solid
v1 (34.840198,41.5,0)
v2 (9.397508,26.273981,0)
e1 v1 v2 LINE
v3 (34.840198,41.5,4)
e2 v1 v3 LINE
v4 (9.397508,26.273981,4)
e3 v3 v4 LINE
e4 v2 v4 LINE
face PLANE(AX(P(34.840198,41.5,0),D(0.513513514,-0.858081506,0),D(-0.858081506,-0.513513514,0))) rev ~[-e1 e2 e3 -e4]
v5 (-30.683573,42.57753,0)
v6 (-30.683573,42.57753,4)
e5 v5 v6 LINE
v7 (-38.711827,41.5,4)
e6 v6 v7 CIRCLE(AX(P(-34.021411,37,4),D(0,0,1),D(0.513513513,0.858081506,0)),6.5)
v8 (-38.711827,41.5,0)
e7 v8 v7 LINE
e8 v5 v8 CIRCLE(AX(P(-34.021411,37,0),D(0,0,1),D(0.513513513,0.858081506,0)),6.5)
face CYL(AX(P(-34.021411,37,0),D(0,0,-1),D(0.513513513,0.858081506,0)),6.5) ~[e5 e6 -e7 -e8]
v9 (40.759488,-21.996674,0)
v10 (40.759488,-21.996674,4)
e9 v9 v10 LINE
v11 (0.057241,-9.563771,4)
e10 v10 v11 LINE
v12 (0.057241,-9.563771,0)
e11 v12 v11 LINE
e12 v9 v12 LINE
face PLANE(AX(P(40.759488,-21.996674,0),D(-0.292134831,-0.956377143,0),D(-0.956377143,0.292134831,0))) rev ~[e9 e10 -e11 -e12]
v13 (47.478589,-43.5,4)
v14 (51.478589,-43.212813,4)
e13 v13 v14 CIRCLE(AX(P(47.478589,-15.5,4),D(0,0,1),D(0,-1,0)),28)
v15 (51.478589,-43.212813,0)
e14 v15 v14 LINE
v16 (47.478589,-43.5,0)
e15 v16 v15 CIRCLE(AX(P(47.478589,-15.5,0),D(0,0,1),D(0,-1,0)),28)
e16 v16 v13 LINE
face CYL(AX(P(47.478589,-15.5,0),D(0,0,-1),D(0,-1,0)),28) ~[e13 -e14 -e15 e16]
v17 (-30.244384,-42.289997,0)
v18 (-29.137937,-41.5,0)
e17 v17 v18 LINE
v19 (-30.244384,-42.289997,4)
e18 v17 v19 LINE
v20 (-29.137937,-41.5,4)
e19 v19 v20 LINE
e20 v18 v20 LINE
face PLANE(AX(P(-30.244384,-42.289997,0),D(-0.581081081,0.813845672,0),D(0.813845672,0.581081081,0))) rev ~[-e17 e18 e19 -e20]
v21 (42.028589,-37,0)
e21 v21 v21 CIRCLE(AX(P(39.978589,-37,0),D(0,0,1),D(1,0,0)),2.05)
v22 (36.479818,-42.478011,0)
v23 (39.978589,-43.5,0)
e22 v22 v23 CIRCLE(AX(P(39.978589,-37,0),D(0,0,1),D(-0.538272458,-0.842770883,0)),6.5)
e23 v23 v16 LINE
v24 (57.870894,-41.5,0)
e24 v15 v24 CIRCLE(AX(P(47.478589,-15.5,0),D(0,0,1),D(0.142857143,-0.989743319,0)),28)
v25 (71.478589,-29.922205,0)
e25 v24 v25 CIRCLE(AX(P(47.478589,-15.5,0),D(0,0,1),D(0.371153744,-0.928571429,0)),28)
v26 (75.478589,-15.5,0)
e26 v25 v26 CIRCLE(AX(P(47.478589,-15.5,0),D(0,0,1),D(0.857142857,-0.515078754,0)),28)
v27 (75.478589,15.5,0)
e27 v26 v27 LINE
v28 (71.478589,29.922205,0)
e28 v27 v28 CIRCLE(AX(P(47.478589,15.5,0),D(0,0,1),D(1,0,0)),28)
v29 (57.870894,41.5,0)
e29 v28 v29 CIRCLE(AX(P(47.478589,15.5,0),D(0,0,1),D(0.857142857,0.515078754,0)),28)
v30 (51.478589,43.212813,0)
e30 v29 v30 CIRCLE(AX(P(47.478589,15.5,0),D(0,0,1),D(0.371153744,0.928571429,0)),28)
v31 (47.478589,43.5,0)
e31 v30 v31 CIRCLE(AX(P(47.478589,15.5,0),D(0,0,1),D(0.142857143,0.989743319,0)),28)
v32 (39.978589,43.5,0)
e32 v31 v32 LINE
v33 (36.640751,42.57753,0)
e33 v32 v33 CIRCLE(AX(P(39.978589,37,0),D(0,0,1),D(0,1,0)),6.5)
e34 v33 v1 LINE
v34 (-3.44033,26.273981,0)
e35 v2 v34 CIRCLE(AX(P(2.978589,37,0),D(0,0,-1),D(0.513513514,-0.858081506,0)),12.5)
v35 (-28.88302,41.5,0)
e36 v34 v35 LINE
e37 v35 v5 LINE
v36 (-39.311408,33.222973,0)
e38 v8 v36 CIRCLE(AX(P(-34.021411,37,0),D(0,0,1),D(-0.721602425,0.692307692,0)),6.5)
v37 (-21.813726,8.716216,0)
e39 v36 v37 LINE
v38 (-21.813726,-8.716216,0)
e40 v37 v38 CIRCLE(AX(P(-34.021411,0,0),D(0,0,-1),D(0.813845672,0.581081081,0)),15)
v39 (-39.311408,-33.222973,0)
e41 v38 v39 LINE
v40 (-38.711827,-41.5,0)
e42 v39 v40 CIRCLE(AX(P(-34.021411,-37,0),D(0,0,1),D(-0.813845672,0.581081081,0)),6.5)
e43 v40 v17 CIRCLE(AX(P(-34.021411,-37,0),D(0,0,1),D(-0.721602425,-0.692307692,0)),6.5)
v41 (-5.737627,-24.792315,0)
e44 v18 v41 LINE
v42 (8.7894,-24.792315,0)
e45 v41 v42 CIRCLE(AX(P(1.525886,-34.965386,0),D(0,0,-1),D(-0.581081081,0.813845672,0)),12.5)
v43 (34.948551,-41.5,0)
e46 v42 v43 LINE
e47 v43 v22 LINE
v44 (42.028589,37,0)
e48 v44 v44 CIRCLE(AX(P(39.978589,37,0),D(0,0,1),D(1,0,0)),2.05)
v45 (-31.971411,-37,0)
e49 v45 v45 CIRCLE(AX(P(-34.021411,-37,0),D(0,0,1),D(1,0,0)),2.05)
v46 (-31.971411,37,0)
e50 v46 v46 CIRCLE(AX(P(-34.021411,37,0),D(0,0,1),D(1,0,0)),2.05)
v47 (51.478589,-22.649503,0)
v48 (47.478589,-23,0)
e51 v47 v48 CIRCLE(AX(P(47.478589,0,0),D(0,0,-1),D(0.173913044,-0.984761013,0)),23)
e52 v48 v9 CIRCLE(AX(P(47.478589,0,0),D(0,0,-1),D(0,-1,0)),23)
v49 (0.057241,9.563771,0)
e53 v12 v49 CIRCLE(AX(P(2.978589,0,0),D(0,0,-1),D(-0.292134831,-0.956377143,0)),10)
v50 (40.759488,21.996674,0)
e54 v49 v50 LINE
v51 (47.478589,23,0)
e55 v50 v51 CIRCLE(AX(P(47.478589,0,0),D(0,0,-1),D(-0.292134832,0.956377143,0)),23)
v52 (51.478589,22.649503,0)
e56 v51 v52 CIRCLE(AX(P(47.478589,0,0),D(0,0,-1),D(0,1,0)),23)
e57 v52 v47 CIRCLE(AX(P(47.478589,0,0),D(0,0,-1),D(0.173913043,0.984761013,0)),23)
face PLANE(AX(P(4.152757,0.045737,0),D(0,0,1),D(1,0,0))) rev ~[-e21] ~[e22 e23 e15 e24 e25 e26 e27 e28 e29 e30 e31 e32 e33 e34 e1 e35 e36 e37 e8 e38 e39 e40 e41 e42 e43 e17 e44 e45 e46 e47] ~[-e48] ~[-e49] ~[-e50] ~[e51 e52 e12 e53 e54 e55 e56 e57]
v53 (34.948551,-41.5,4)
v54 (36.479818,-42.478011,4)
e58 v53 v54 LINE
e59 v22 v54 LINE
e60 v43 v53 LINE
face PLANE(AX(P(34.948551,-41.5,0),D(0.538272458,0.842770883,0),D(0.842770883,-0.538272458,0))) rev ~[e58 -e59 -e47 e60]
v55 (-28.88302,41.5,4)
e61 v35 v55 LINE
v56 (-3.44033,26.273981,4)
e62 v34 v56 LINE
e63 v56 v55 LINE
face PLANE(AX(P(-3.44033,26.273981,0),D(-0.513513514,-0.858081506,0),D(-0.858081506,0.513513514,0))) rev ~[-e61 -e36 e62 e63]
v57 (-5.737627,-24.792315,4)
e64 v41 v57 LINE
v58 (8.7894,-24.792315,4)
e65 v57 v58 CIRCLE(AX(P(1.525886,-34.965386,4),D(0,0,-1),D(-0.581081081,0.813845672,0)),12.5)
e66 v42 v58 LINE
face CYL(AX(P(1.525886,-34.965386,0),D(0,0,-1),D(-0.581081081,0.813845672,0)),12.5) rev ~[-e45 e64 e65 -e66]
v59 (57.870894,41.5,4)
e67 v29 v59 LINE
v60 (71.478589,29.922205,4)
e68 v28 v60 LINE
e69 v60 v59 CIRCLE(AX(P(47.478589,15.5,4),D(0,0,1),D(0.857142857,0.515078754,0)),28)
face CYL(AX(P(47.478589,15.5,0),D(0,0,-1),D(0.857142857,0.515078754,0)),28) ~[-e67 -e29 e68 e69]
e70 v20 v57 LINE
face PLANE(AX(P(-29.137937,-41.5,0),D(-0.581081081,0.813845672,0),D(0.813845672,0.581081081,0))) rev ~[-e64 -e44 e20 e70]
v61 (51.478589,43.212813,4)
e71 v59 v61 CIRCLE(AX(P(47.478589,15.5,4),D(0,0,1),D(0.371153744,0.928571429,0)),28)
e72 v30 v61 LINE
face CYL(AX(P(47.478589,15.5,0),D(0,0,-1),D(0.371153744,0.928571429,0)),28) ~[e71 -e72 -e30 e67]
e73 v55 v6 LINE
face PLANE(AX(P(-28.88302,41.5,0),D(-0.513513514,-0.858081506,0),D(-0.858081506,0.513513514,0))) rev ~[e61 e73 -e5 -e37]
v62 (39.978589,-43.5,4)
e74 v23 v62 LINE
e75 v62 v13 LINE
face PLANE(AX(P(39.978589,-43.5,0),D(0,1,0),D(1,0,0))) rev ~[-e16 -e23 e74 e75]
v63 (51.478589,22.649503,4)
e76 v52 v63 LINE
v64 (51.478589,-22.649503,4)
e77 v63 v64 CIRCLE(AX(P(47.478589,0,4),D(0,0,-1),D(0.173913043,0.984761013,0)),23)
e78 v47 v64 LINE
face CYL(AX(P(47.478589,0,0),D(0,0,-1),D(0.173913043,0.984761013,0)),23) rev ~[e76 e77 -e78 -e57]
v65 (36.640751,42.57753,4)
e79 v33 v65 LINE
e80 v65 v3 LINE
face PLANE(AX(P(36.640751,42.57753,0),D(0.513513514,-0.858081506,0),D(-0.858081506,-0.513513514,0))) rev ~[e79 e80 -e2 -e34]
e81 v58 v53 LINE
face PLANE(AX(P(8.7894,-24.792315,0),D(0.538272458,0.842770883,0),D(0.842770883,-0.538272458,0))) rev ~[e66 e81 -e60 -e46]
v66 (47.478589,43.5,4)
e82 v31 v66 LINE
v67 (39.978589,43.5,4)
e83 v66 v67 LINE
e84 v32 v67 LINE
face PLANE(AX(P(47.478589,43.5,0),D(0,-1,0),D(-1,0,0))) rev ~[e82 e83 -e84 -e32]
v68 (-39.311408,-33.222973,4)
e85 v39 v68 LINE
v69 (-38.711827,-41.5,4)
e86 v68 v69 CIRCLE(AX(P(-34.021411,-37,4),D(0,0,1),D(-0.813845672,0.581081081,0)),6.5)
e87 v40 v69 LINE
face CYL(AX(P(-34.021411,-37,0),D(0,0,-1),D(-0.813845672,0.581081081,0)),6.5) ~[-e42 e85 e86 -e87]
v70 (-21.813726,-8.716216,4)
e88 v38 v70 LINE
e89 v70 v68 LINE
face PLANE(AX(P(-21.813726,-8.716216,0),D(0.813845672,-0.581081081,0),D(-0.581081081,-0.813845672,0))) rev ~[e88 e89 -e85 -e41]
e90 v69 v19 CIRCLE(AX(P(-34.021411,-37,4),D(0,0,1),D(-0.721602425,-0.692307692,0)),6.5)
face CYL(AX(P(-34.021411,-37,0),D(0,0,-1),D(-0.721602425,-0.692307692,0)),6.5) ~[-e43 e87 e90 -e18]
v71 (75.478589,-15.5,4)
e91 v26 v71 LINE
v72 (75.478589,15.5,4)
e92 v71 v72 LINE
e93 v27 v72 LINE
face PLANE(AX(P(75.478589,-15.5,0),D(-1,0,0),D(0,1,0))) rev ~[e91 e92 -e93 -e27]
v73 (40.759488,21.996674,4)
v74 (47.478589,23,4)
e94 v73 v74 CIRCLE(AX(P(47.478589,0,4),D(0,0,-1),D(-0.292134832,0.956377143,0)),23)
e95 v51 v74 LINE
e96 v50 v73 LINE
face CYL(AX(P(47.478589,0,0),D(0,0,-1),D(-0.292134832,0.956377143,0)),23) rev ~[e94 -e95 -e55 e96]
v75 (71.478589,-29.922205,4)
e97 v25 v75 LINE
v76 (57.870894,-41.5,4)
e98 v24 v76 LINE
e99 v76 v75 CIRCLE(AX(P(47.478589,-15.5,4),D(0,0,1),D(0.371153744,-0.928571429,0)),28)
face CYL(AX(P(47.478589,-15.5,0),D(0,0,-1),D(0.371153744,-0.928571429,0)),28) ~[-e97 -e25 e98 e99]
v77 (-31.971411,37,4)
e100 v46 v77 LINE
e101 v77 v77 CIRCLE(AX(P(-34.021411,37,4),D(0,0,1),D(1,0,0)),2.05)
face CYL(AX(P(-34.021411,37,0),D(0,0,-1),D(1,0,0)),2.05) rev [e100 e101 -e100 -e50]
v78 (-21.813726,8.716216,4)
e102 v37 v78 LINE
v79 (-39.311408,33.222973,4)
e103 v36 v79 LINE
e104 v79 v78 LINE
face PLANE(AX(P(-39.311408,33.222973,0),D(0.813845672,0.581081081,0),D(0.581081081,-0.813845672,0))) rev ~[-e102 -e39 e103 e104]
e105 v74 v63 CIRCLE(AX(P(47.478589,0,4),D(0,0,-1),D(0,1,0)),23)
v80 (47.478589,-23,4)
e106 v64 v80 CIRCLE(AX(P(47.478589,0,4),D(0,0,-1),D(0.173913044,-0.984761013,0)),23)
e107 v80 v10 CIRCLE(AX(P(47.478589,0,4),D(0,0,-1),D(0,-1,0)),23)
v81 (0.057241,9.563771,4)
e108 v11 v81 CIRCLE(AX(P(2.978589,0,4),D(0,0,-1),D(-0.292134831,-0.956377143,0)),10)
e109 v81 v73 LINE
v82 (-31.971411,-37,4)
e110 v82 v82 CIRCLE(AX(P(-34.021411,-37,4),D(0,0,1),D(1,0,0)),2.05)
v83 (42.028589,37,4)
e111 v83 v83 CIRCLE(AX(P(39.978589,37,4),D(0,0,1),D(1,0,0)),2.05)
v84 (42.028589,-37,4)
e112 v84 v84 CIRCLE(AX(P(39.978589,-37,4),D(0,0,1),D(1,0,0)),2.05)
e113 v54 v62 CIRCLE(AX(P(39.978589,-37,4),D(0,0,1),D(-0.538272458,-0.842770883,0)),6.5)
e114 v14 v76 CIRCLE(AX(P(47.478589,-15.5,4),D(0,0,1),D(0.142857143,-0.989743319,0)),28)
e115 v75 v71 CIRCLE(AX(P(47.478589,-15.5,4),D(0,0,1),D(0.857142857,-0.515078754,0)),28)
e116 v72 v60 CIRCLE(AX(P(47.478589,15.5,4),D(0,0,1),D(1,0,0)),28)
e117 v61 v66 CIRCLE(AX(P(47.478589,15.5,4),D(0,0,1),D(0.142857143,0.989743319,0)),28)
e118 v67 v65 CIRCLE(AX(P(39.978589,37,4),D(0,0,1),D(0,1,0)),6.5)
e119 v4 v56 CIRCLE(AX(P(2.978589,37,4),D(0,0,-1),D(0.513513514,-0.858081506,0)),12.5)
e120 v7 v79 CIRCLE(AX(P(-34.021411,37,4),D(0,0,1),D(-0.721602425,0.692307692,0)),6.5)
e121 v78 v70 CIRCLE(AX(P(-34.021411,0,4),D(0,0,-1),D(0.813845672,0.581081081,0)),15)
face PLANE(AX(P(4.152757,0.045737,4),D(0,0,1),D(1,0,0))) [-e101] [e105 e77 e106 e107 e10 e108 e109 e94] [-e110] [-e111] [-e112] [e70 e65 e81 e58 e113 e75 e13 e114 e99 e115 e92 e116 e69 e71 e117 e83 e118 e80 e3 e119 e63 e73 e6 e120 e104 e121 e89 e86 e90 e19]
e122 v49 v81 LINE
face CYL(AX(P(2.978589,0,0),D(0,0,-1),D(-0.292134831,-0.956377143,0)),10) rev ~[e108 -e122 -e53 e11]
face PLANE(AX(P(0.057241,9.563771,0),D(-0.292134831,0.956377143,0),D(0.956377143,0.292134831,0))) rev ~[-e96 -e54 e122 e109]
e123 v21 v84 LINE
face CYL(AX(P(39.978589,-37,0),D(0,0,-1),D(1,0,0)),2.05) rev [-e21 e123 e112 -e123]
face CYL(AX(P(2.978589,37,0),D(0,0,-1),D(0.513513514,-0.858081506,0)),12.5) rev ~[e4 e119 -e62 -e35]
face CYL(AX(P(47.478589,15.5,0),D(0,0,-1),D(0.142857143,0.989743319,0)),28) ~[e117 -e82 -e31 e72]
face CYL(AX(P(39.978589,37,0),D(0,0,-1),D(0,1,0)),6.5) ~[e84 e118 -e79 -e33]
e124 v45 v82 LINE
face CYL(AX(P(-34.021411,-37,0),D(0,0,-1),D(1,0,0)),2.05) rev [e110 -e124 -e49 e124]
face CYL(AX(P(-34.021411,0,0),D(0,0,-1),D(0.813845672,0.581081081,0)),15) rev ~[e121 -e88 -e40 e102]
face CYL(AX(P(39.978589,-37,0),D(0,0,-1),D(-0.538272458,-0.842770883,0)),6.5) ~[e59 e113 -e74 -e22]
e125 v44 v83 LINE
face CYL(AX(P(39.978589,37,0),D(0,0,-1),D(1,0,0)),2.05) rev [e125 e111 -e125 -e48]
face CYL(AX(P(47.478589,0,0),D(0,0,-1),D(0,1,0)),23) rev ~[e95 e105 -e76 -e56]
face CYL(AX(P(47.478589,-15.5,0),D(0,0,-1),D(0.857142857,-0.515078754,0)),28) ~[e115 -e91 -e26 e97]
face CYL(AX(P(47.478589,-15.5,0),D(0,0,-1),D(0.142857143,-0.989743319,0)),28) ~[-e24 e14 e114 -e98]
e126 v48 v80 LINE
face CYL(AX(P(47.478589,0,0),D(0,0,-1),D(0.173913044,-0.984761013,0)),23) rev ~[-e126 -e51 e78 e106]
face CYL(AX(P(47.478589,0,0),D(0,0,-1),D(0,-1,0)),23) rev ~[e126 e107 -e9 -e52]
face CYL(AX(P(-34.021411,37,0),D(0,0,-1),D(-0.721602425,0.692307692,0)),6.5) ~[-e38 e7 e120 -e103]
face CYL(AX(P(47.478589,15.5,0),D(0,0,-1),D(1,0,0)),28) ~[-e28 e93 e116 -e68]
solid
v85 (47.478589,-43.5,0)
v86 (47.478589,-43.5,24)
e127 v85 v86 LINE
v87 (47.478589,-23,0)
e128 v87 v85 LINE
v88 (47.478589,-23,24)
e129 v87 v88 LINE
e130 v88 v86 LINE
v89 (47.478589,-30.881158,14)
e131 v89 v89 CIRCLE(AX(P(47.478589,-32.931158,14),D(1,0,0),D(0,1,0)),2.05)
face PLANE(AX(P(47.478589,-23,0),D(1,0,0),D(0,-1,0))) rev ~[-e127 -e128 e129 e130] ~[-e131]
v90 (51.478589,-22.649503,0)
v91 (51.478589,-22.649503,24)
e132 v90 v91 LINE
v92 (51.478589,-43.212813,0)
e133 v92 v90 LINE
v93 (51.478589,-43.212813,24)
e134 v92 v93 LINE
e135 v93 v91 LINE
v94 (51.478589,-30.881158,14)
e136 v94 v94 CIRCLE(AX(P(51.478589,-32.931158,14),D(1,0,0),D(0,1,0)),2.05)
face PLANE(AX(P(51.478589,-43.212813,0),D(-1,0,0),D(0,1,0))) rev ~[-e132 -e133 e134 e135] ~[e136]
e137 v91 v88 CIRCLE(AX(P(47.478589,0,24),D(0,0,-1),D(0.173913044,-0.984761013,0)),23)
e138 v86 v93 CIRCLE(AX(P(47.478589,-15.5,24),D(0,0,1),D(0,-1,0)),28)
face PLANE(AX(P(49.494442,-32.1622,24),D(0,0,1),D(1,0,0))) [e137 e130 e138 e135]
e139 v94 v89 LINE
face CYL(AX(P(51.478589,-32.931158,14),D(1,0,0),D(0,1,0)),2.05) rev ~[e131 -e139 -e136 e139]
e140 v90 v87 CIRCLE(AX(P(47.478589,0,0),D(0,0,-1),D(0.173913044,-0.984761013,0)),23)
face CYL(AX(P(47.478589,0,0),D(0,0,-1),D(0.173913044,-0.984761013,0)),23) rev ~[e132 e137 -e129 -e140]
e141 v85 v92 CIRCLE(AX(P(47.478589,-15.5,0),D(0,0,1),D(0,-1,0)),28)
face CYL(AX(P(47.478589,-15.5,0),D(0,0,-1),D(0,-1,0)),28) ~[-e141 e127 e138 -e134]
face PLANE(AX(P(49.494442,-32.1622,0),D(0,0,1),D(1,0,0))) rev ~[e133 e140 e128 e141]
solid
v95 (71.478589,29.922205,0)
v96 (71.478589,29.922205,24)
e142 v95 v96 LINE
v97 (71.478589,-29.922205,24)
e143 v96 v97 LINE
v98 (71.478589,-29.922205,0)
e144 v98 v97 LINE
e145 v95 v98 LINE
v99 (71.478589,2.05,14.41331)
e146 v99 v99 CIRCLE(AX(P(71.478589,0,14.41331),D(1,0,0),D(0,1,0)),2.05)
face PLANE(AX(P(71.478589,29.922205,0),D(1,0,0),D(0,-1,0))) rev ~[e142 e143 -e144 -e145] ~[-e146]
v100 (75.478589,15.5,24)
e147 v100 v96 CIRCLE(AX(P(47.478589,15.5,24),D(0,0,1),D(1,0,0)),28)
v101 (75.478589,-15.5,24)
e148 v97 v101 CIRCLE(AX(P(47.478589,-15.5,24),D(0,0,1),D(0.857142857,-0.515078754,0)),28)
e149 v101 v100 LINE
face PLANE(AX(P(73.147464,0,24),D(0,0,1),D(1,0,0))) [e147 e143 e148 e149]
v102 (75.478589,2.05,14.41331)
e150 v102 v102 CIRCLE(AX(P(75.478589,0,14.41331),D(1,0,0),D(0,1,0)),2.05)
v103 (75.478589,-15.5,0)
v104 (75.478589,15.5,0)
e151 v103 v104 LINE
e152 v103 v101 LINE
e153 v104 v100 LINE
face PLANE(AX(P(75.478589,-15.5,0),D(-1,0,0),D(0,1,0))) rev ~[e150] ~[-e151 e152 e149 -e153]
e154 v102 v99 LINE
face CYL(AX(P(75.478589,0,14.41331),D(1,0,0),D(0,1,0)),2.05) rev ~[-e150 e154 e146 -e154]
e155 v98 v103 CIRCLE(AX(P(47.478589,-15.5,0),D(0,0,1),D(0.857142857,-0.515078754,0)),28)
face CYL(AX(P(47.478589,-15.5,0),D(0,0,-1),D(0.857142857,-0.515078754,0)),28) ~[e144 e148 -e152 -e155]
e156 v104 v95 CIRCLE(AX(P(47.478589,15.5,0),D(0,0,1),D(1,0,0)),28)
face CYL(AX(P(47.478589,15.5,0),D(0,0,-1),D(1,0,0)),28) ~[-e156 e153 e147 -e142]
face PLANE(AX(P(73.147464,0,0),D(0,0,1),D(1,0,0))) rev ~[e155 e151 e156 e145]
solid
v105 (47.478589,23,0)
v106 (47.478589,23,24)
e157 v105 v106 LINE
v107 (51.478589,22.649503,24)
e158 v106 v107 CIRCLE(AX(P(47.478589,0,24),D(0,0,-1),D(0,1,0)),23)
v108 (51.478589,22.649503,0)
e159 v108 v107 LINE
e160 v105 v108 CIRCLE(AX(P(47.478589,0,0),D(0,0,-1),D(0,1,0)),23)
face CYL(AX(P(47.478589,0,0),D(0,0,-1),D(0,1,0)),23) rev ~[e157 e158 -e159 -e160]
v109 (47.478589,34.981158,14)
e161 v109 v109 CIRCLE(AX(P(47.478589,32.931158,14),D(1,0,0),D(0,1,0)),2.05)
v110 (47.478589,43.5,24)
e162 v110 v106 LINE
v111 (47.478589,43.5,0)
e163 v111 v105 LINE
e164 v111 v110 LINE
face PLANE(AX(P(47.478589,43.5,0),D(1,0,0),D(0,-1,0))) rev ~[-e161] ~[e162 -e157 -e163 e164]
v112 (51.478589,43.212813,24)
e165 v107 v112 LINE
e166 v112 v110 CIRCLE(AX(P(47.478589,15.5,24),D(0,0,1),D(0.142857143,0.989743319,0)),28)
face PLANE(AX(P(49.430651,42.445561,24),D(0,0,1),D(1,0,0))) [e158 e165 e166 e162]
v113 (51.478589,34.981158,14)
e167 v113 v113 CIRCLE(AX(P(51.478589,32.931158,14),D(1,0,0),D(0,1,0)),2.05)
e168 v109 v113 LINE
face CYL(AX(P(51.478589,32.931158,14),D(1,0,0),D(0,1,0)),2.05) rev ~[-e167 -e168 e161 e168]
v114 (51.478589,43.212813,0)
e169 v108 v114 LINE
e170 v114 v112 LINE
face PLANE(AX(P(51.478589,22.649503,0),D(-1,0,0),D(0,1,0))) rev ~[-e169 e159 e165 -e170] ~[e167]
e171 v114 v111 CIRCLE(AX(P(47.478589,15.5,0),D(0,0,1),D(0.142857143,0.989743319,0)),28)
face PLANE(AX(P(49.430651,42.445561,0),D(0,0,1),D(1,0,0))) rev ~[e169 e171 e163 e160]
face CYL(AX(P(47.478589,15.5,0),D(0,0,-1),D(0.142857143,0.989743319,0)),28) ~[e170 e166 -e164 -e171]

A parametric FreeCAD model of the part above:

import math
import FreeCAD as App
import Part
import Sketcher

V = App.Vector
Q = App.Units.Quantity

doc = App.newDocument("Part")
body = doc.addObject("PartDesign::Body", "Body")

# Sketch on XY plane
sketch1 = body.newObject("Sketcher::SketchObject", "Sketch")
sketch1.AttachmentSupport = (doc.getObject("XY_Plane"), [""])
sketch1.MapMode = "FlatFace"
sketch1.addGeometry(Part.LineSegment(V(-3.4, 26.3, 0), V(-28.9, 41.5, 0)), False)
sketch1.addGeometry(Part.LineSegment(V(-28.9, 41.5, 0), V(-30.7, 42.6, 0)), False)
sketch1.addGeometry(Part.ArcOfCircle(Part.Circle(V(-34, 37, 0), V(0, 0, 1), 6.5), math.radians(59), math.radians(136)), False)
sketch1.addGeometry(Part.ArcOfCircle(Part.Circle(V(-34, 37, 0), V(0, 0, 1), 6.5), math.radians(136), math.radians(216)), False)
sketch1.addGeometry(Part.LineSegment(V(-39.3, 33.2, 0), V(-21.8, 8.7, 0)), False)
sketch1.addGeometry(Part.ArcOfCircle(Part.Circle(V(-34, 0, 0), V(0, 0, 1), 15), math.radians(-36), math.radians(36)), False)
sketch1.addGeometry(Part.LineSegment(V(-21.8, -8.7, 0), V(-39.3, -33.2, 0)), False)
sketch1.addGeometry(Part.ArcOfCircle(Part.Circle(V(-34, -37, 0), V(0, 0, 1), 6.5), math.radians(144), math.radians(224)), False)
sketch1.addGeometry(Part.ArcOfCircle(Part.Circle(V(-34, -37, 0), V(0, 0, 1), 6.5), math.radians(-136), math.radians(-54)), False)
sketch1.addGeometry(Part.LineSegment(V(-30.2, -42.3, 0), V(-29.1, -41.5, 0)), False)
sketch1.addGeometry(Part.LineSegment(V(-29.1, -41.5, 0), V(-5.7, -24.8, 0)), False)
sketch1.addGeometry(Part.ArcOfCircle(Part.Circle(V(1.5, -35, 0), V(0, 0, 1), 12.5), math.radians(54), math.radians(126)), False)
sketch1.addGeometry(Part.LineSegment(V(8.8, -24.8, 0), V(34.9, -41.5, 0)), False)
sketch1.addGeometry(Part.LineSegment(V(34.9, -41.5, 0), V(36.5, -42.5, 0)), False)
sketch1.addGeometry(Part.ArcOfCircle(Part.Circle(V(40, -37, 0), V(0, 0, 1), 6.5), math.radians(-123), math.radians(-90)), False)
sketch1.addGeometry(Part.LineSegment(V(40, -43.5, 0), V(47.5, -43.5, 0)), False)
sketch1.addGeometry(Part.ArcOfCircle(Part.Circle(V(47.5, -15.5, 0), V(0, 0, 1), 28), math.radians(-90), math.radians(-81.79)), False)
sketch1.addGeometry(Part.ArcOfCircle(Part.Circle(V(47.5, -15.5, 0), V(0, 0, 1), 28), math.radians(-81.79), math.radians(-68.21)), False)
sketch1.addGeometry(Part.ArcOfCircle(Part.Circle(V(47.5, -15.5, 0), V(0, 0, 1), 28), math.radians(-68), math.radians(-31)), False)
sketch1.addGeometry(Part.ArcOfCircle(Part.Circle(V(47.5, -15.5, 0), V(0, 0, 1), 28), math.radians(-31), math.radians(0)), False)
sketch1.addGeometry(Part.LineSegment(V(75.5, -15.5, 0), V(75.5, 15.5, 0)), False)
sketch1.addGeometry(Part.ArcOfCircle(Part.Circle(V(47.5, 15.5, 0), V(0, 0, 1), 28), math.radians(0), math.radians(31)), False)
sketch1.addGeometry(Part.ArcOfCircle(Part.Circle(V(47.5, 15.5, 0), V(0, 0, 1), 28), math.radians(31), math.radians(68)), False)
sketch1.addGeometry(Part.ArcOfCircle(Part.Circle(V(47.5, 15.5, 0), V(0, 0, 1), 28), math.radians(68.21), math.radians(81.79)), False)
sketch1.addGeometry(Part.ArcOfCircle(Part.Circle(V(47.5, 15.5, 0), V(0, 0, 1), 28), math.radians(81.79), math.radians(90)), False)
sketch1.addGeometry(Part.LineSegment(V(47.5, 43.5, 0), V(40, 43.5, 0)), False)
sketch1.addGeometry(Part.ArcOfCircle(Part.Circle(V(40, 37, 0), V(0, 0, 1), 6.5), math.radians(90), math.radians(121)), False)
sketch1.addGeometry(Part.LineSegment(V(36.6, 42.6, 0), V(34.8, 41.5, 0)), False)
sketch1.addGeometry(Part.LineSegment(V(34.8, 41.5, 0), V(9.4, 26.3, 0)), False)
sketch1.addGeometry(Part.ArcOfCircle(Part.Circle(V(3, 37, 0), V(0, 0, 1), 12.5), math.radians(-121), math.radians(-59)), False)
sketch1.addGeometry(Part.ArcOfCircle(Part.Circle(V(47.5, 0, 0), V(0, 0, 1), 23), math.radians(-106.99), math.radians(-90)), False)
sketch1.addGeometry(Part.LineSegment(V(40.8, -22, 0), V(0.1, -9.6, 0)), False)
sketch1.addGeometry(Part.ArcOfCircle(Part.Circle(V(3, 0, 0), V(0, 0, 1), 10), math.radians(107), math.radians(253)), False)
sketch1.addGeometry(Part.LineSegment(V(0.1, 9.6, 0), V(40.8, 22, 0)), False)
sketch1.addGeometry(Part.ArcOfCircle(Part.Circle(V(47.5, 0, 0), V(0, 0, 1), 23), math.radians(90), math.radians(106.99)), False)
sketch1.addGeometry(Part.ArcOfCircle(Part.Circle(V(47.5, 0, 0), V(0, 0, 1), 23), math.radians(79.98), math.radians(90)), False)
sketch1.addGeometry(Part.ArcOfCircle(Part.Circle(V(47.5, 0, 0), V(0, 0, 1), 23), math.radians(-80), math.radians(80)), False)
sketch1.addGeometry(Part.ArcOfCircle(Part.Circle(V(47.5, 0, 0), V(0, 0, 1), 23), math.radians(-90), math.radians(-79.98)), False)
sketch1.addGeometry(Part.Circle(V(-34, -37, 0), V(0, 0, 1), 2), False)
sketch1.addGeometry(Part.Circle(V(40, -37, 0), V(0, 0, 1), 2), False)
sketch1.addGeometry(Part.Circle(V(-34, 37, 0), V(0, 0, 1), 2), False)
sketch1.addGeometry(Part.Circle(V(40, 37, 0), V(0, 0, 1), 2), False)
sketch1.addConstraint(Sketcher.Constraint("Coincident", 0, 2, 1, 1))
sketch1.addConstraint(Sketcher.Constraint("Tangent", 1, 2, 2, 1))
sketch1.addConstraint(Sketcher.Constraint("Tangent", 2, 2, 3, 1))
sketch1.addConstraint(Sketcher.Constraint("Tangent", 3, 2, 4, 1))
sketch1.addConstraint(Sketcher.Constraint("Tangent", 4, 2, 5, 2))
sketch1.addConstraint(Sketcher.Constraint("Tangent", 5, 1, 6, 1))
sketch1.addConstraint(Sketcher.Constraint("Tangent", 6, 2, 7, 1))
sketch1.addConstraint(Sketcher.Constraint("Tangent", 7, 2, 8, 1))
sketch1.addConstraint(Sketcher.Constraint("Tangent", 8, 2, 9, 1))
sketch1.addConstraint(Sketcher.Constraint("Coincident", 9, 2, 10, 1))
sketch1.addConstraint(Sketcher.Constraint("Tangent", 10, 2, 11, 2))
sketch1.addConstraint(Sketcher.Constraint("Coincident", 11, 1, 12, 1))
sketch1.addConstraint(Sketcher.Constraint("Coincident", 12, 2, 13, 1))
sketch1.addConstraint(Sketcher.Constraint("Tangent", 13, 2, 14, 1))
sketch1.addConstraint(Sketcher.Constraint("Tangent", 14, 2, 15, 1))
sketch1.addConstraint(Sketcher.Constraint("Tangent", 15, 2, 16, 1))
sketch1.addConstraint(Sketcher.Constraint("Tangent", 16, 2, 17, 1))
sketch1.addConstraint(Sketcher.Constraint("Tangent", 17, 2, 18, 1))
sketch1.addConstraint(Sketcher.Constraint("Tangent", 18, 2, 19, 1))
sketch1.addConstraint(Sketcher.Constraint("Tangent", 19, 2, 20, 1))
sketch1.addConstraint(Sketcher.Constraint("Tangent", 20, 2, 21, 1))
sketch1.addConstraint(Sketcher.Constraint("Tangent", 21, 2, 22, 1))
sketch1.addConstraint(Sketcher.Constraint("Tangent", 22, 2, 23, 1))
sketch1.addConstraint(Sketcher.Constraint("Tangent", 23, 2, 24, 1))
sketch1.addConstraint(Sketcher.Constraint("Tangent", 24, 2, 25, 1))
sketch1.addConstraint(Sketcher.Constraint("Tangent", 25, 2, 26, 1))
sketch1.addConstraint(Sketcher.Constraint("Tangent", 26, 2, 27, 1))
sketch1.addConstraint(Sketcher.Constraint("Coincident", 27, 2, 28, 1))
sketch1.addConstraint(Sketcher.Constraint("Tangent", 28, 2, 29, 2))
sketch1.addConstraint(Sketcher.Constraint("Tangent", 29, 1, 0, 1))
sketch1.addConstraint(Sketcher.Constraint("Tangent", 30, 1, 31, 1))
sketch1.addConstraint(Sketcher.Constraint("Tangent", 31, 2, 32, 2))
sketch1.addConstraint(Sketcher.Constraint("Tangent", 32, 1, 33, 1))
sketch1.addConstraint(Sketcher.Constraint("Tangent", 33, 2, 34, 2))
sketch1.addConstraint(Sketcher.Constraint("Tangent", 34, 1, 35, 2))
sketch1.addConstraint(Sketcher.Constraint("Tangent", 35, 1, 36, 2))
sketch1.addConstraint(Sketcher.Constraint("Tangent", 36, 1, 37, 2))
sketch1.addConstraint(Sketcher.Constraint("Tangent", 37, 1, 30, 2))
sketch1.addConstraint(Sketcher.Constraint("Horizontal", 15))
sketch1.addConstraint(Sketcher.Constraint("Vertical", 20))
sketch1.addConstraint(Sketcher.Constraint("Horizontal", 25))
sketch1.addConstraint(Sketcher.Constraint("Coincident", 18, 3, 16, 3))
sketch1.addConstraint(Sketcher.Constraint("Coincident", 23, 3, 21, 3))
sketch1.addConstraint(Sketcher.Constraint("Coincident", 34, 3, 30, 3))
sketch1.addConstraint(Sketcher.Constraint("Coincident", 36, 3, 30, 3))
sketch1.addConstraint(Sketcher.Constraint("Coincident", 38, 3, 7, 3))
sketch1.addConstraint(Sketcher.Constraint("Coincident", 39, 3, 14, 3))
sketch1.addConstraint(Sketcher.Constraint("Coincident", 40, 3, 2, 3))
sketch1.addConstraint(Sketcher.Constraint("Coincident", 41, 3, 26, 3))
sketch1.addConstraint(Sketcher.Constraint("Equal", 2, 3))
sketch1.addConstraint(Sketcher.Constraint("Equal", 3, 7))
sketch1.addConstraint(Sketcher.Constraint("Equal", 7, 8))
sketch1.addConstraint(Sketcher.Constraint("Equal", 8, 14))
sketch1.addConstraint(Sketcher.Constraint("Equal", 18, 19))
sketch1.addConstraint(Sketcher.Constraint("Equal", 19, 21))
sketch1.addConstraint(Sketcher.Constraint("Equal", 23, 24))
sketch1.addConstraint(Sketcher.Constraint("Equal", 14, 26))
sketch1.addConstraint(Sketcher.Constraint("Equal", 11, 29))
sketch1.addConstraint(Sketcher.Constraint("Equal", 38, 39))
sketch1.addConstraint(Sketcher.Constraint("Equal", 39, 40))
sketch1.addConstraint(Sketcher.Constraint("Equal", 40, 41))
sketch1.addConstraint(Sketcher.Constraint("Symmetric", 2, 3, 7, 3, -1))
sketch1.addConstraint(Sketcher.Constraint("Symmetric", 14, 3, 26, 3, -1))
sketch1.addConstraint(Sketcher.Constraint("Symmetric", 31, 2, 32, 1, -1))
sketch1.addConstraint(Sketcher.Constraint("PointOnObject", 5, 3, -1))
sketch1.addConstraint(Sketcher.Constraint("Parallel", 0, 1))
sketch1.addConstraint(Sketcher.Constraint("Perpendicular", 4, 9))
sketch1.addConstraint(Sketcher.Constraint("Parallel", 9, 10))
sketch1.addConstraint(Sketcher.Constraint("Parallel", 12, 13))
sketch1.addConstraint(Sketcher.Constraint("Parallel", 27, 28))
sketch1.addConstraint(Sketcher.Constraint("Horizontal", 8, 3, 14, 3))
sketch1.addConstraint(Sketcher.Constraint("Horizontal", 26, 3, 29, 3))
sketch1.addConstraint(Sketcher.Constraint("Horizontal", 0, 2, 2, 2))
sketch1.addConstraint(Sketcher.Constraint("Horizontal", 7, 2, 9, 2))
sketch1.addConstraint(Sketcher.Constraint("Horizontal", 10, 2, 11, 1))
sketch1.addConstraint(Sketcher.Constraint("Horizontal", 9, 2, 12, 2))
sketch1.addConstraint(Sketcher.Constraint("Horizontal", 12, 2, 17, 2))
sketch1.addConstraint(Sketcher.Constraint("Horizontal", 2, 2, 22, 2))
sketch1.addConstraint(Sketcher.Constraint("Horizontal", 1, 2, 26, 2))
sketch1.addConstraint(Sketcher.Constraint("Horizontal", 22, 2, 27, 2))
sketch1.addConstraint(Sketcher.Constraint("Vertical", 3, 3, 5, 3))
sketch1.addConstraint(Sketcher.Constraint("Vertical", 24, 3, 30, 3))
sketch1.addConstraint(Sketcher.Constraint("Vertical", 29, 3, 32, 3))
sketch1.addConstraint(Sketcher.Constraint("Vertical", 2, 2, 7, 2))
sketch1.addConstraint(Sketcher.Constraint("Vertical", 18, 2, 21, 2))
sketch1.addConstraint(Sketcher.Constraint("Vertical", 16, 2, 23, 2))
sketch1.addConstraint(Sketcher.Constraint("Vertical", 24, 2, 34, 1))
sketch1.addConstraint(Sketcher.Constraint("Vertical", 23, 2, 35, 1))
sketch1.addConstraint(Sketcher.Constraint("Vertical", 35, 1, 36, 1))
sketch1.addConstraint(Sketcher.Constraint("Vertical", 34, 1, 37, 1))
sketch1.addConstraint(Sketcher.Constraint("Radius", 5, Q("15 mm")))
sketch1.addConstraint(Sketcher.Constraint("Radius", 16, Q("28 mm")))
sketch1.addConstraint(Sketcher.Constraint("Radius", 30, Q("23 mm")))
sketch1.addConstraint(Sketcher.Constraint("Radius", 32, Q("10 mm")))
sketch1.addConstraint(Sketcher.Constraint("Diameter", 38, Q("4.1 mm")))
sketch1.addConstraint(Sketcher.Constraint("Radius", 2, Q("6.5 mm")))
sketch1.addConstraint(Sketcher.Constraint("Radius", 11, Q("12.5 mm")))
sketch1.addConstraint(Sketcher.Constraint("DistanceY", 20, 1, 20, 2, Q("31 mm")))
sketch1.addConstraint(Sketcher.Constraint("DistanceX", 15, 1, 15, 2, Q("7.5 mm")))
sketch1.addConstraint(Sketcher.Constraint("DistanceY", -1, 1, 0, 2, Q("41.5 mm")))
sketch1.addConstraint(Sketcher.Constraint("DistanceX", -1, 1, 11, 1, Q("8.7894 mm")))
sketch1.addConstraint(Sketcher.Constraint("Distance", 0, Q("29.650668 mm")))
sketch1.addConstraint(Sketcher.Constraint("Distance", 10, Q("28.75276 mm")))
sketch1.addConstraint(Sketcher.Constraint("DistanceX", -1, 1, 16, 2, Q("51.478589 mm")))
sketch1.addConstraint(Sketcher.Constraint("DistanceX", -1, 1, 18, 2, Q("71.478589 mm")))
pad1 = body.newObject("PartDesign::Pad", "Pad")
pad1.Profile = sketch1
pad1.Length = 4
body2 = doc.addObject("PartDesign::Body", "Body001")

# Sketch on XY plane
sketch2 = body2.newObject("Sketcher::SketchObject", "Sketch001")
sketch2.AttachmentSupport = (doc.getObject("XY_Plane001"), [""])
sketch2.MapMode = "FlatFace"
sketch2.addGeometry(Part.LineSegment(V(47.5, 43.5, 0), V(47.5, 23, 0)), False)
sketch2.addGeometry(Part.ArcOfCircle(Part.Circle(V(47.5, 0, 0), V(0, 0, 1), 23), math.radians(79.98), math.radians(90)), False)
sketch2.addGeometry(Part.LineSegment(V(51.5, 22.6, 0), V(51.5, 43.2, 0)), False)
sketch2.addGeometry(Part.ArcOfCircle(Part.Circle(V(47.5, 15.5, 0), V(0, 0, 1), 28), math.radians(81.79), math.radians(90)), False)
sketch2.addConstraint(Sketcher.Constraint("Coincident", 0, 2, 1, 2))
sketch2.addConstraint(Sketcher.Constraint("Coincident", 1, 1, 2, 1))
sketch2.addConstraint(Sketcher.Constraint("Coincident", 2, 2, 3, 1))
sketch2.addConstraint(Sketcher.Constraint("Coincident", 3, 2, 0, 1))
sketch2.addConstraint(Sketcher.Constraint("Vertical", 0))
sketch2.addConstraint(Sketcher.Constraint("Vertical", 2))
sketch2.addConstraint(Sketcher.Constraint("PointOnObject", 1, 3, -1))
sketch2.addConstraint(Sketcher.Constraint("Vertical", 1, 3, 3, 3))
sketch2.addConstraint(Sketcher.Constraint("Vertical", 3, 3, 0, 2))
sketch2.addConstraint(Sketcher.Constraint("Radius", 1, Q("23 mm")))
sketch2.addConstraint(Sketcher.Constraint("Radius", 3, Q("28 mm")))
sketch2.addConstraint(Sketcher.Constraint("DistanceY", 0, 2, 0, 1, Q("20.5 mm")))
sketch2.addConstraint(Sketcher.Constraint("DistanceX", 0, 2, 1, 1, Q("4 mm")))
sketch2.addConstraint(Sketcher.Constraint("DistanceX", -1, 1, 1, 3, Q("47.478589 mm")))
pad2 = body2.newObject("PartDesign::Pad", "Pad001")
pad2.Profile = sketch2
pad2.Length = 24
body3 = doc.addObject("PartDesign::Body", "Body002")

# Sketch on XY plane
sketch3 = body3.newObject("Sketcher::SketchObject", "Sketch002")
sketch3.AttachmentSupport = (doc.getObject("XY_Plane002"), [""])
sketch3.MapMode = "FlatFace"
sketch3.addGeometry(Part.ArcOfCircle(Part.Circle(V(47, 16, 0), V(0, 0, 1), 28), math.radians(0), math.radians(31)), False)
sketch3.addGeometry(Part.LineSegment(V(71, 30, 0), V(71, -30, 0)), False)
sketch3.addGeometry(Part.ArcOfCircle(Part.Circle(V(47, -16, 0), V(0, 0, 1), 28), math.radians(-31), math.radians(0)), False)
sketch3.addGeometry(Part.LineSegment(V(75, -16, 0), V(75, 16, 0)), False)
sketch3.addConstraint(Sketcher.Constraint("Coincident", 0, 2, 1, 1))
sketch3.addConstraint(Sketcher.Constraint("Coincident", 1, 2, 2, 1))
sketch3.addConstraint(Sketcher.Constraint("Tangent", 2, 2, 3, 1))
sketch3.addConstraint(Sketcher.Constraint("Tangent", 3, 2, 0, 1))
sketch3.addConstraint(Sketcher.Constraint("Vertical", 1))
sketch3.addConstraint(Sketcher.Constraint("Vertical", 3))
sketch3.addConstraint(Sketcher.Constraint("Equal", 0, 2))
sketch3.addConstraint(Sketcher.Constraint("Radius", 0, Q("28 mm")))
sketch3.addConstraint(Sketcher.Constraint("DistanceY", 3, 1, 3, 2, Q("31 mm")))
sketch3.addConstraint(Sketcher.Constraint("DistanceX", 0, 3, 0, 2, Q("24 mm")))
sketch3.addConstraint(Sketcher.Constraint("DistanceY", -1, 1, 0, 3, Q("15.5 mm")))
sketch3.addConstraint(Sketcher.Constraint("DistanceX", -1, 1, 0, 3, Q("47.478589 mm")))
pad3 = body3.newObject("PartDesign::Pad", "Pad002")
pad3.Profile = sketch3
pad3.Length = 24

# Sketch on YZ plane
sketch4 = body3.newObject("Sketcher::SketchObject", "Sketch003")
sketch4.AttachmentSupport = (doc.getObject("YZ_Plane002"), [""])
sketch4.MapMode = "FlatFace"
sketch4.AttachmentOffset = App.Placement(V(0, 0, 75.478589), App.Rotation())
sketch4.addGeometry(Part.Circle(V(0, 14.4, 0), V(0, 0, 1), 2), False)
sketch4.addConstraint(Sketcher.Constraint("PointOnObject", 0, 3, -2))
sketch4.addConstraint(Sketcher.Constraint("Diameter", 0, Q("4.1 mm")))
sketch4.addConstraint(Sketcher.Constraint("DistanceY", -1, 1, 0, 3, Q("14.41331 mm")))
pocket1 = body3.newObject("PartDesign::Pocket", "Pocket")
pocket1.Profile = sketch4
pocket1.Length = 8
body4 = doc.addObject("PartDesign::Body", "Body003")

# Sketch on XY plane
sketch5 = body4.newObject("Sketcher::SketchObject", "Sketch004")
sketch5.AttachmentSupport = (doc.getObject("XY_Plane003"), [""])
sketch5.MapMode = "FlatFace"
sketch5.addGeometry(Part.LineSegment(V(47.5, -23, 0), V(47.5, -43.5, 0)), False)
sketch5.addGeometry(Part.ArcOfCircle(Part.Circle(V(47.5, -15.5, 0), V(0, 0, 1), 28), math.radians(-90), math.radians(-81.79)), False)
sketch5.addGeometry(Part.LineSegment(V(51.5, -43.2, 0), V(51.5, -22.6, 0)), False)
sketch5.addGeometry(Part.ArcOfCircle(Part.Circle(V(47.5, 0, 0), V(0, 0, 1), 23), math.radians(-90), math.radians(-79.98)), False)
sketch5.addConstraint(Sketcher.Constraint("Coincident", 0, 2, 1, 1))
sketch5.addConstraint(Sketcher.Constraint("Coincident", 1, 2, 2, 1))
sketch5.addConstraint(Sketcher.Constraint("Coincident", 2, 2, 3, 2))
sketch5.addConstraint(Sketcher.Constraint("Coincident", 3, 1, 0, 1))
sketch5.addConstraint(Sketcher.Constraint("Vertical", 0))
sketch5.addConstraint(Sketcher.Constraint("Vertical", 2))
sketch5.addConstraint(Sketcher.Constraint("PointOnObject", 3, 3, -1))
sketch5.addConstraint(Sketcher.Constraint("Vertical", 1, 3, 3, 3))
sketch5.addConstraint(Sketcher.Constraint("Vertical", 3, 3, 0, 2))
sketch5.addConstraint(Sketcher.Constraint("Radius", 1, Q("28 mm")))
sketch5.addConstraint(Sketcher.Constraint("Radius", 3, Q("23 mm")))
sketch5.addConstraint(Sketcher.Constraint("DistanceY", 0, 2, 0, 1, Q("20.5 mm")))
sketch5.addConstraint(Sketcher.Constraint("DistanceX", 0, 2, 1, 2, Q("4 mm")))
sketch5.addConstraint(Sketcher.Constraint("DistanceX", -1, 1, 1, 3, Q("47.478589 mm")))
pad4 = body4.newObject("PartDesign::Pad", "Pad003")
pad4.Profile = sketch5
pad4.Length = 24
body5 = doc.addObject("PartDesign::Body", "Body004")
body5.AllowCompound = True

# Sketch on YZ plane
sketch6 = body5.newObject("Sketcher::SketchObject", "Sketch005")
sketch6.AttachmentSupport = (doc.getObject("YZ_Plane004"), [""])
sketch6.MapMode = "FlatFace"
sketch6.AttachmentOffset = App.Placement(V(0, 0, 51.478589), App.Rotation())
sketch6.addGeometry(Part.Circle(V(-32.9, 14, 0), V(0, 0, 1), 2), False)
sketch6.addGeometry(Part.Circle(V(32.9, 14, 0), V(0, 0, 1), 2), False)
sketch6.addConstraint(Sketcher.Constraint("Equal", 0, 1))
sketch6.addConstraint(Sketcher.Constraint("Symmetric", 0, 3, 1, 3, -2))
sketch6.addConstraint(Sketcher.Constraint("Diameter", 0, Q("4.1 mm")))
sketch6.addConstraint(Sketcher.Constraint("DistanceY", -1, 1, 0, 3, Q("14 mm")))
sketch6.addConstraint(Sketcher.Constraint("DistanceX", 0, 3, -1, 1, Q("32.931158 mm")))
pad5 = body5.newObject("PartDesign::Pad", "Pad004")
pad5.Profile = sketch6
pad5.Length = 8
pad5.Midplane = True
doc.recompute()

body6 = doc.addObject("PartDesign::Body", "Body005")
body6.BaseFeature = body5
boolean = body2.newObject("PartDesign::Boolean", "Boolean")
boolean.Type = "Cut"
boolean.addObjects([body6])
doc.recompute()

boolean2 = body4.newObject("PartDesign::Boolean", "Boolean001")
boolean2.Type = "Cut"
boolean2.addObjects([body5])

doc.recompute()
